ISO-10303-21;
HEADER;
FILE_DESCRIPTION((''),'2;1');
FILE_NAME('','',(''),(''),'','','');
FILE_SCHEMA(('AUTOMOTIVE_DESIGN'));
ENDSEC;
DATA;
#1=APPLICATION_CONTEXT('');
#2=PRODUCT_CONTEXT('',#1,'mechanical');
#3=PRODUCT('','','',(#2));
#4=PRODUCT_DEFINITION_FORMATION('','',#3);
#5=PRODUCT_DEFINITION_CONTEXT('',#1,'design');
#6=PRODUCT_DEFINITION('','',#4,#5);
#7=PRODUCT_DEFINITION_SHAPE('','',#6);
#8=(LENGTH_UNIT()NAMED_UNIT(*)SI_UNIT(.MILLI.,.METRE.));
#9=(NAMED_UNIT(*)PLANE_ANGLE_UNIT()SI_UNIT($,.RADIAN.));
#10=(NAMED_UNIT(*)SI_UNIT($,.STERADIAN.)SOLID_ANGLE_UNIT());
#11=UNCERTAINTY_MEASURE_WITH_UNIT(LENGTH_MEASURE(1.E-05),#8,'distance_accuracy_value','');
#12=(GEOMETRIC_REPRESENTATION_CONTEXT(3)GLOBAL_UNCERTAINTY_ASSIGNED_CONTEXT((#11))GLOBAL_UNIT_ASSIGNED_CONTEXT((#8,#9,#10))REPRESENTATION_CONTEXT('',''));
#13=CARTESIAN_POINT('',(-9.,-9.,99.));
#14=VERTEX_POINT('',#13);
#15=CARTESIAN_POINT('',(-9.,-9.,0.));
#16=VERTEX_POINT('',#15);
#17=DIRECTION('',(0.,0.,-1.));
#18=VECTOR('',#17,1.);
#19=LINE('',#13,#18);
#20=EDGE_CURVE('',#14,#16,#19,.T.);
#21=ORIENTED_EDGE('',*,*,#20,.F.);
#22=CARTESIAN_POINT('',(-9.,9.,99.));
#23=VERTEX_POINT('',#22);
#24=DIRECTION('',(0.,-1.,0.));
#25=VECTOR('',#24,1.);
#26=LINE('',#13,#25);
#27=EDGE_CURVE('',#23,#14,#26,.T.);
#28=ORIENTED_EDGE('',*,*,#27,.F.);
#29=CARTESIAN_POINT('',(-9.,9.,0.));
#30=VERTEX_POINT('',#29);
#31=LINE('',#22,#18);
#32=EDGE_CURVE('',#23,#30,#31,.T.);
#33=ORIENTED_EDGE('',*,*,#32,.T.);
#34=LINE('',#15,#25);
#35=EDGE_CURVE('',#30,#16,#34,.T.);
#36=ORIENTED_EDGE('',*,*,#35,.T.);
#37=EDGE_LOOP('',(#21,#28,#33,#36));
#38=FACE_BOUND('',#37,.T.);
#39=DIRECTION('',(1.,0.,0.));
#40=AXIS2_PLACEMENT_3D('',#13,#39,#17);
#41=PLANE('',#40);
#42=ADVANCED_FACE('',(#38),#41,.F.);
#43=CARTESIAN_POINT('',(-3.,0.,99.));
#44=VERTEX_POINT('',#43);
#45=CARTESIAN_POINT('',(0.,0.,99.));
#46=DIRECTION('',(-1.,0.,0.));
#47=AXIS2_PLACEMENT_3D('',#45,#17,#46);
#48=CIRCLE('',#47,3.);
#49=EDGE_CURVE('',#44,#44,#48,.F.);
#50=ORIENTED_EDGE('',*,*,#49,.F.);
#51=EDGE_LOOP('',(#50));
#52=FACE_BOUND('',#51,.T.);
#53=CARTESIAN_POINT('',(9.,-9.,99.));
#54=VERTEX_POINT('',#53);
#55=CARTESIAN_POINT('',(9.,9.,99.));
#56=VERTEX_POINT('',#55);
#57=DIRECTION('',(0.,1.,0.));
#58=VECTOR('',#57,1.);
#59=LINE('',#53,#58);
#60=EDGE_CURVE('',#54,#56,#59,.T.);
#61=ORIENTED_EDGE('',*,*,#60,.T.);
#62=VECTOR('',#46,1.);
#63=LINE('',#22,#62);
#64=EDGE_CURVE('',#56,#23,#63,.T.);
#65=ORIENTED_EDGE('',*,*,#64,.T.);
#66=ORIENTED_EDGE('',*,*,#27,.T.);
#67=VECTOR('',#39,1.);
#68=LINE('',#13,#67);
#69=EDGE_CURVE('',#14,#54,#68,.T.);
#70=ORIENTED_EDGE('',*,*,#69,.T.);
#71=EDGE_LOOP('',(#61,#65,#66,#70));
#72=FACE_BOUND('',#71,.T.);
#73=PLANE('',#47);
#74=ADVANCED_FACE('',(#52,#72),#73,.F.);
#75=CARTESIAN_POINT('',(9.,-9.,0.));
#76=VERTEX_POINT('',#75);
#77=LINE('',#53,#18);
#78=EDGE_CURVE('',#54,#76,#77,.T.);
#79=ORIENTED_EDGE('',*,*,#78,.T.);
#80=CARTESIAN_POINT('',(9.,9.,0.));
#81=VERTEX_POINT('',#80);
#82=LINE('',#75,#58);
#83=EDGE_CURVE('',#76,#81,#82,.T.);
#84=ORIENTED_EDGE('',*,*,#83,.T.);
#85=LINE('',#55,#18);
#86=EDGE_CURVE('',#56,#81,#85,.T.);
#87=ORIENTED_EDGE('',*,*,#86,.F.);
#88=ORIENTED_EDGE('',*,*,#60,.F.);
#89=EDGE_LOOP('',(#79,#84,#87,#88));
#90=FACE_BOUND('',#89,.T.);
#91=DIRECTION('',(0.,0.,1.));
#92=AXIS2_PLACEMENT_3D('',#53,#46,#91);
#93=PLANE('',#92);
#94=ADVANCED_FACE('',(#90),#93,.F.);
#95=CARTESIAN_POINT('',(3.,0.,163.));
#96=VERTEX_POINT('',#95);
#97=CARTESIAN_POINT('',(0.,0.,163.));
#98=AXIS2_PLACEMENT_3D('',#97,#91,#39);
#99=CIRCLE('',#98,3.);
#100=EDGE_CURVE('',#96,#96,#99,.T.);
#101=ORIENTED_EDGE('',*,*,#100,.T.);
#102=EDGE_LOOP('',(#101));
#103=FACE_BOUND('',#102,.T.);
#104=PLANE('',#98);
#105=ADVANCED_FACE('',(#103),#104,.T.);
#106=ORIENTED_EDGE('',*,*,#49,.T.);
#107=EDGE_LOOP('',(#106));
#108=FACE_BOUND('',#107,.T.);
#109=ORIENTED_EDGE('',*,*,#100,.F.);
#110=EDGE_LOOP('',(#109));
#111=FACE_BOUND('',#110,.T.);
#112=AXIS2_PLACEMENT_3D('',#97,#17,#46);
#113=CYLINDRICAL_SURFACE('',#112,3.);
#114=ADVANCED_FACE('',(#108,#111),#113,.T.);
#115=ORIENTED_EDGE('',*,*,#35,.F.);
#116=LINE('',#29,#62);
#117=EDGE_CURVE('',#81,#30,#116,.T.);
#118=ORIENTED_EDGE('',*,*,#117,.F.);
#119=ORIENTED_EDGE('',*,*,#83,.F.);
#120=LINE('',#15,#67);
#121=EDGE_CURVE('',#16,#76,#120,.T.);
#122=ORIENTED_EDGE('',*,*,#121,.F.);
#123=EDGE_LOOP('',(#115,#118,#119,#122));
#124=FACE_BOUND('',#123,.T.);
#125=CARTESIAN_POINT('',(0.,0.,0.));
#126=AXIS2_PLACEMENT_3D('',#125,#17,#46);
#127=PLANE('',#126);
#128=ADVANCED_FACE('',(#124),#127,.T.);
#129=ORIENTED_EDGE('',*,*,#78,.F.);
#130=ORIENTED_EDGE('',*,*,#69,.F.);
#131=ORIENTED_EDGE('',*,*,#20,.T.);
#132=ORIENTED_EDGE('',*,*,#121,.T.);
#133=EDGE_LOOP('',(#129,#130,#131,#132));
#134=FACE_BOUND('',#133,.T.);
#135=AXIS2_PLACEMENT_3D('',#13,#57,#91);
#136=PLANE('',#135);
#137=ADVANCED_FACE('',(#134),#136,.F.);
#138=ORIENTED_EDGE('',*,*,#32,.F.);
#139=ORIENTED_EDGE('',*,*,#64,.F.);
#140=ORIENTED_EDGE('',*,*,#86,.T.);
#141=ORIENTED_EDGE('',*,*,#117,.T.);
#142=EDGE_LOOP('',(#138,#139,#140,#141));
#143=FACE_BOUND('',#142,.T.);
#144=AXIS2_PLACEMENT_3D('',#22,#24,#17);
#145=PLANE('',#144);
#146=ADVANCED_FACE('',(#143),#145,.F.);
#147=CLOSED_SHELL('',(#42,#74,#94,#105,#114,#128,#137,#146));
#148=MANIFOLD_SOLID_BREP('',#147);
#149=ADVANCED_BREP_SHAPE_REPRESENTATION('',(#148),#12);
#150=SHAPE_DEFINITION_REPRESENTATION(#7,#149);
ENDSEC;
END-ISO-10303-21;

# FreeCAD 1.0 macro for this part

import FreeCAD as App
import Part
import Sketcher

doc = App.newDocument("Part")
params = doc.addObject("Spreadsheet::Sheet", "Params")
for row, (alias, value) in enumerate([
    ("sketch1_width", "18 mm"),
    ("pad1_length", "99 mm"),
    ("sketch2_diameter", "6 mm"),
    ("pad2_length", "64 mm"),
], start=1):
    params.set(f"A{row}", alias)
    params.set(f"B{row}", "=" + value)
    params.setAlias(f"B{row}", alias)

body = doc.addObject("PartDesign::Body", "Body")

# Sketch on XY plane
sketch1 = body.newObject("Sketcher::SketchObject", "Sketch")
sketch1.AttachmentSupport = (doc.getObject("XY_Plane"), [""])
sketch1.MapMode = "FlatFace"
sketch1.addGeometry([
    Part.LineSegment(App.Vector(-9, 9, 0), App.Vector(-9, -9, 0)),
    Part.LineSegment(App.Vector(-9, -9, 0), App.Vector(9, -9, 0)),
    Part.LineSegment(App.Vector(9, -9, 0), App.Vector(9, 9, 0)),
    Part.LineSegment(App.Vector(9, 9, 0), App.Vector(-9, 9, 0)),
], False)
sketch1.addConstraint([
    Sketcher.Constraint("Coincident", 0, 2, 1, 1),
    Sketcher.Constraint("Coincident", 1, 2, 2, 1),
    Sketcher.Constraint("Coincident", 2, 2, 3, 1),
    Sketcher.Constraint("Coincident", 3, 2, 0, 1),
    Sketcher.Constraint("Vertical", 0),
    Sketcher.Constraint("Horizontal", 1),
    Sketcher.Constraint("Vertical", 2),
    Sketcher.Constraint("Horizontal", 3),
    Sketcher.Constraint("Symmetric", 0, 2, 2, 2, -1, 1),
    Sketcher.Constraint("Equal", 3, 0),
    Sketcher.Constraint("DistanceX", 1, 1, 1, 2, 18.0),
])
sketch1.setExpression("Constraints[10]", "Params.sketch1_width")
pad1 = body.newObject("PartDesign::Pad", "Pad")
pad1.Profile = sketch1
pad1.setExpression("Length", "Params.pad1_length")

# Sketch on XY plane
sketch2 = body.newObject("Sketcher::SketchObject", "Sketch001")
sketch2.AttachmentSupport = (doc.getObject("XY_Plane"), [""])
sketch2.MapMode = "FlatFace"
sketch2.AttachmentOffset = App.Placement(App.Vector(0, 0, 99), App.Rotation())
sketch2.addGeometry(Part.Circle(App.Vector(0, 0, 0), App.Vector(0, 0, 1), 3), False)
sketch2.addConstraint([
    Sketcher.Constraint("Coincident", 0, 3, -1, 1),
    Sketcher.Constraint("Diameter", 0, 6.0),
])
sketch2.setExpression("Constraints[1]", "Params.sketch2_diameter")
pad2 = body.newObject("PartDesign::Pad", "Pad001")
pad2.Profile = sketch2
pad2.setExpression("Length", "Params.pad2_length")

doc.recompute()
